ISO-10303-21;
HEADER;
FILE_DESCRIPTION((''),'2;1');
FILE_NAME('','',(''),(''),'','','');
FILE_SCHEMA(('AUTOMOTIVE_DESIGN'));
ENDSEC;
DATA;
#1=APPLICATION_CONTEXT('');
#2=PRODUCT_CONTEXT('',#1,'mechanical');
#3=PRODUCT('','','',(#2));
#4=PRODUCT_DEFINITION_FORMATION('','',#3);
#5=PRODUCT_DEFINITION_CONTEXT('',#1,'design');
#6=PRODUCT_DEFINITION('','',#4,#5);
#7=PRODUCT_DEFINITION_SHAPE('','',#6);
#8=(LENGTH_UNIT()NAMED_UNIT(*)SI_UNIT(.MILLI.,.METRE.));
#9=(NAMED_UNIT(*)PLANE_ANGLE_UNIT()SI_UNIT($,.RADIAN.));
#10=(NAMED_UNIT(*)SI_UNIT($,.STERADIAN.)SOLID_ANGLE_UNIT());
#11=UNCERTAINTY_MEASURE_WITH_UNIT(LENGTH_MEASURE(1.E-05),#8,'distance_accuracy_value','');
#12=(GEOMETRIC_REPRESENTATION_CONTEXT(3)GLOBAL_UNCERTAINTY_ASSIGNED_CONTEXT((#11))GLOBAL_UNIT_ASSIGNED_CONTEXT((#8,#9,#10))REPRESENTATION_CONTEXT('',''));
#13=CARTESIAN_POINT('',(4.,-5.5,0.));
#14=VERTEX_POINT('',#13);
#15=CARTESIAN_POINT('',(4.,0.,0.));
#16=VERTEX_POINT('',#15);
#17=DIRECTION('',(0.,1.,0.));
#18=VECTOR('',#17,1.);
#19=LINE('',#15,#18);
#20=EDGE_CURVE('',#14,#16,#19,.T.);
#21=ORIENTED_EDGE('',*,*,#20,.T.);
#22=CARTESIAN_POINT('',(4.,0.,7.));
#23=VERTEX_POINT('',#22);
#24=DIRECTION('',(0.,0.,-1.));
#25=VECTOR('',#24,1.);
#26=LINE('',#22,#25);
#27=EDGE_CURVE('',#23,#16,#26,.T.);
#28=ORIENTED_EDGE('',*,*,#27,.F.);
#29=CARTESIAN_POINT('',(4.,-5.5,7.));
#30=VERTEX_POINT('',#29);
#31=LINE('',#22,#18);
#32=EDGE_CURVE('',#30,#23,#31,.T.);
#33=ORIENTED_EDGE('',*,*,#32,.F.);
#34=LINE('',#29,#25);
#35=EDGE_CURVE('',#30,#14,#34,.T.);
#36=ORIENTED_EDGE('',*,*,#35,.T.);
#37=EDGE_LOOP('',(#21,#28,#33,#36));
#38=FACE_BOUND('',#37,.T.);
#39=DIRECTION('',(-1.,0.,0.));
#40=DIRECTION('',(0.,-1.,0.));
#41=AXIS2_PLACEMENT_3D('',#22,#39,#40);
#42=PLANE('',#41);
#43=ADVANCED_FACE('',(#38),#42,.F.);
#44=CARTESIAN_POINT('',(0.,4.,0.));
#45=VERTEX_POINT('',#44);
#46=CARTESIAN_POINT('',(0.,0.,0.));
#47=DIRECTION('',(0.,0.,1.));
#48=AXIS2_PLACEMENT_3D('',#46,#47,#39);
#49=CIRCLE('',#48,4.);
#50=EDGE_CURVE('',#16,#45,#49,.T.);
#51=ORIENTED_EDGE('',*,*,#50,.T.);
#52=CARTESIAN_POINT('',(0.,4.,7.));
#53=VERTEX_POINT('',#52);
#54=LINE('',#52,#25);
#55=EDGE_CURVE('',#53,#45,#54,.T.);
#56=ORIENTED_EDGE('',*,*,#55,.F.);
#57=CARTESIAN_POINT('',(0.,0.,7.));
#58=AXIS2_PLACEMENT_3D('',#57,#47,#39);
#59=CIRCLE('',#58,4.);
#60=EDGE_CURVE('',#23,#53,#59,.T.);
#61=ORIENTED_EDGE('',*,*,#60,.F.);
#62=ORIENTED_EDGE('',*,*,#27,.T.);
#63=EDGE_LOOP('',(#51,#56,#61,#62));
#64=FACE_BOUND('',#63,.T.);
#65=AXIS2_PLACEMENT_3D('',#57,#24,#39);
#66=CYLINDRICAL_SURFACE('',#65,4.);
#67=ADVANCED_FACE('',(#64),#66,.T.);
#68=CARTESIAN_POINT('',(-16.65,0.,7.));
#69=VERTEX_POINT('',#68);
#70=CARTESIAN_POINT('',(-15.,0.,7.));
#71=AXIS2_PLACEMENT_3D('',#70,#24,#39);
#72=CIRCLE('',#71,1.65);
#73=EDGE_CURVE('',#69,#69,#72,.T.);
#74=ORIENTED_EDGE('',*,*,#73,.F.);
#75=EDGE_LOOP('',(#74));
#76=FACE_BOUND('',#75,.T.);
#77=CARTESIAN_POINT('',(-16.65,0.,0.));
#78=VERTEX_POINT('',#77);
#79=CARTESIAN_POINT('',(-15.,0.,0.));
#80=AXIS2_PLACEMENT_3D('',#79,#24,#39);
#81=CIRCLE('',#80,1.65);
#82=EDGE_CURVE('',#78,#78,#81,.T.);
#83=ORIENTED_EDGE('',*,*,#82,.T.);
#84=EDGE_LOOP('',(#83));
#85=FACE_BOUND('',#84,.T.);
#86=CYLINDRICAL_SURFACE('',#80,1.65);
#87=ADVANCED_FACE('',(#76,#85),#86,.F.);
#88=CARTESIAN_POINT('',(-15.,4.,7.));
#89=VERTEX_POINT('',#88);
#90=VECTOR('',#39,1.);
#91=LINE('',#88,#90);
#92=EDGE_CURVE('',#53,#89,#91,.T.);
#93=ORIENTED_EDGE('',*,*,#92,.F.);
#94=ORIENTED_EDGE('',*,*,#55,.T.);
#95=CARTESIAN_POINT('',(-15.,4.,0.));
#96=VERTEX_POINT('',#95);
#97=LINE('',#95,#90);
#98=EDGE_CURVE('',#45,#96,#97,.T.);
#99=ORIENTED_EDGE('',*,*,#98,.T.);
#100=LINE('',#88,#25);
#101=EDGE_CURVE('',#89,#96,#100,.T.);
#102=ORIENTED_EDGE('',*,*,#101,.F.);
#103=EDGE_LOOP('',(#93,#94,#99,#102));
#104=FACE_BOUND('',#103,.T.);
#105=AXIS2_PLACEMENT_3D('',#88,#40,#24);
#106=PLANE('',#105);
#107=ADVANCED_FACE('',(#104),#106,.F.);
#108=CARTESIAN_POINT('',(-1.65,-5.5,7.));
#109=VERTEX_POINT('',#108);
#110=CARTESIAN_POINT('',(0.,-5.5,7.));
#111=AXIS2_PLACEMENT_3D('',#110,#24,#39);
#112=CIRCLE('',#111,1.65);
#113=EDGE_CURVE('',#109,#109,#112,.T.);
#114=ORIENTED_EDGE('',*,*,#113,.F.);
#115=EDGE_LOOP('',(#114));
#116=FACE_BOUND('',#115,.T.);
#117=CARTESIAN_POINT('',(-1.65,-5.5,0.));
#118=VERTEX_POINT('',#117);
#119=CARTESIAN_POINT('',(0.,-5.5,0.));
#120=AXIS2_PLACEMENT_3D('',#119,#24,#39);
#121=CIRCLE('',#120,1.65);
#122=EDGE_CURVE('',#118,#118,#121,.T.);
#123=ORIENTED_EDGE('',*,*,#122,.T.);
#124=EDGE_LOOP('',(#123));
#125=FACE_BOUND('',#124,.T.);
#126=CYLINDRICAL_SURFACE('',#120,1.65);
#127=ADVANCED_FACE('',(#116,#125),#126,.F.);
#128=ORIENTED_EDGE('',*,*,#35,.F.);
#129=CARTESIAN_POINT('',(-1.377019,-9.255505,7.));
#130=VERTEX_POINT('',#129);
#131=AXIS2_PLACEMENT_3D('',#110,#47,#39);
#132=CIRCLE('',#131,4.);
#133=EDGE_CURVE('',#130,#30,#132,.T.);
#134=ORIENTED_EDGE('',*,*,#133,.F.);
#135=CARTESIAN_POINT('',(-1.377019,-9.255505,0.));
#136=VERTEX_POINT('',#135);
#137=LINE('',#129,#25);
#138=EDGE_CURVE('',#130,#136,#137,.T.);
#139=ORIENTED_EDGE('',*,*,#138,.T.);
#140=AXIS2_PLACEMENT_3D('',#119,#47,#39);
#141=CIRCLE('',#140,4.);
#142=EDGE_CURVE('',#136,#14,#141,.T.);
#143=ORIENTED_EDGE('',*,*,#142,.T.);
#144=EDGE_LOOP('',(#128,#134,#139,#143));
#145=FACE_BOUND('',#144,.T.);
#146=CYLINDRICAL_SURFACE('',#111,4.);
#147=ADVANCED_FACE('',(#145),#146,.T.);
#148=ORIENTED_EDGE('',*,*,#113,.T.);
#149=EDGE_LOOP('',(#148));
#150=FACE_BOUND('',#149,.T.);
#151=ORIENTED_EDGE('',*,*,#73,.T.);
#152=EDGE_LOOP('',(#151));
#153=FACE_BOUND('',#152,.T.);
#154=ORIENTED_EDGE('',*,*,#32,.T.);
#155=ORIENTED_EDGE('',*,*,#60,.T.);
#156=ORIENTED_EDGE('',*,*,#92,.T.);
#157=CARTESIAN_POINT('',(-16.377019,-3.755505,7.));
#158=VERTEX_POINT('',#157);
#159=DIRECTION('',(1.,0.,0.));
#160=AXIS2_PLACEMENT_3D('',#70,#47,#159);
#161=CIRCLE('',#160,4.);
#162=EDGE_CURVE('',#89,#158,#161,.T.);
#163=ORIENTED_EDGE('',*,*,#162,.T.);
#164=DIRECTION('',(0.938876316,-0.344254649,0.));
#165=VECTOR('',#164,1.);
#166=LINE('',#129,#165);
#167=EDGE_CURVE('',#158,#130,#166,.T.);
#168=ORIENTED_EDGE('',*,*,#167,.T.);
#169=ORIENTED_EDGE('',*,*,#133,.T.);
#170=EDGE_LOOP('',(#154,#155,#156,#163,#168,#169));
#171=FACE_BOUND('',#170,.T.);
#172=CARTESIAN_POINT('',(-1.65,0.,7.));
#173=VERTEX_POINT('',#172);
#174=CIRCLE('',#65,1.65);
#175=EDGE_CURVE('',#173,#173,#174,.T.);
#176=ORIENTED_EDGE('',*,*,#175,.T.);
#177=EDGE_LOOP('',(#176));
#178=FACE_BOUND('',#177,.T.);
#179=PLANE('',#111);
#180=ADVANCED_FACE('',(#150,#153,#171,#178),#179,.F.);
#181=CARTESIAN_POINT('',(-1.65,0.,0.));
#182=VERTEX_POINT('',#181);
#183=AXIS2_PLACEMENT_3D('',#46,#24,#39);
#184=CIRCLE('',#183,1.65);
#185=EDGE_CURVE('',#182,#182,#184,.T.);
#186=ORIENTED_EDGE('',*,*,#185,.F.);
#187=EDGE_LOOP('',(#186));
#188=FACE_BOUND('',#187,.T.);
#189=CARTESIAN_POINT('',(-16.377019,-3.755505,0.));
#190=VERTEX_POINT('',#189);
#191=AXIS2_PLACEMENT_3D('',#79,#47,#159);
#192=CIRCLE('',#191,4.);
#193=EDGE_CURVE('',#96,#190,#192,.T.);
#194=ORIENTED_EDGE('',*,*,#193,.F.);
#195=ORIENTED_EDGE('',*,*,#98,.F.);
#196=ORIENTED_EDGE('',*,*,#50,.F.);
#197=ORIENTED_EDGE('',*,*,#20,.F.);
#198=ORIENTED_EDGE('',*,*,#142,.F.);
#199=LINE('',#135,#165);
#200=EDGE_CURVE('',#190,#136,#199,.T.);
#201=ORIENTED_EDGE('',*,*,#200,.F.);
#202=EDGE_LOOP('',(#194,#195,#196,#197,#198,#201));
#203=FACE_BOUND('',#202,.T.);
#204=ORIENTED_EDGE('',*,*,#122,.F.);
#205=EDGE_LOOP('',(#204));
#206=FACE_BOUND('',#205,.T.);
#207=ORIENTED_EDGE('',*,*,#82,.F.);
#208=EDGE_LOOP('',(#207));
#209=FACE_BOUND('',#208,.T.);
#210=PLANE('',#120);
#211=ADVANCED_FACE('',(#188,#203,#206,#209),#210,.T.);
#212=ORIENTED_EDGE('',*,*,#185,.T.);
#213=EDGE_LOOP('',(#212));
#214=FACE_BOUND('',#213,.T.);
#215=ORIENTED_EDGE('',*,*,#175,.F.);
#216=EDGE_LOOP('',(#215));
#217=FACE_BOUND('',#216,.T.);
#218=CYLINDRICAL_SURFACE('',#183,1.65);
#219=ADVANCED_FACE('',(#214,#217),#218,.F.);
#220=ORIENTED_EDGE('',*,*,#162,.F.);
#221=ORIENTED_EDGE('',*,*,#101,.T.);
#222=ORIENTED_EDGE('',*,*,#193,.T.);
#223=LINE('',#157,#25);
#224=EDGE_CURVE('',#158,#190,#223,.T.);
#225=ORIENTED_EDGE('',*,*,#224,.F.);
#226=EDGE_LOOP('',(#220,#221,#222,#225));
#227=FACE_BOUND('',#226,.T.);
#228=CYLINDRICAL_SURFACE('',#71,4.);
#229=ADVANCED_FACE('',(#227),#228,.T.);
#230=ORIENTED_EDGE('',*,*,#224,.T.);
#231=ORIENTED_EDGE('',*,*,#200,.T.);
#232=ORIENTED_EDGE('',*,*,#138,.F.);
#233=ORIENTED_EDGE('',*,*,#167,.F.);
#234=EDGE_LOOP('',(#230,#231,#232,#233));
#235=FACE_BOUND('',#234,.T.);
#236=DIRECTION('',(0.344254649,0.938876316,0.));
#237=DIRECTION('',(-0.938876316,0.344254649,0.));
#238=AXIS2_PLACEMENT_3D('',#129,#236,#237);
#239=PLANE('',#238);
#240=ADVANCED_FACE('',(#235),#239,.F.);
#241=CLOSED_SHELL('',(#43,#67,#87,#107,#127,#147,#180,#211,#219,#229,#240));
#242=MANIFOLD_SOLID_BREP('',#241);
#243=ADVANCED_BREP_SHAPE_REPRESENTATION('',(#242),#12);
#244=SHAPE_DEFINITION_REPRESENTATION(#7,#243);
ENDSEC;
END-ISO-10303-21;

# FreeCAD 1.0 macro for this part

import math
import FreeCAD as App
import Part
import Sketcher
from FreeCAD import Vector

doc = App.newDocument("Part")
params = doc.addObject("Spreadsheet::Sheet", "Params")
for row, (alias, value) in enumerate([
    ("sketch1_radius", "4 mm"),
    ("sketch1_width", "15 mm"),
    ("sketch1_height", "5.5 mm"),
    ("pad1_length", "7 mm"),
    ("sketch2_diameter", "3.3 mm"),
    ("hole_diameter", "3.3 mm"),
], start=1):
    params.set(f"A{row}", alias)
    params.set(f"B{row}", "=" + value)
    params.setAlias(f"B{row}", alias)

body = doc.addObject("PartDesign::Body", "Body")

# Sketch on XY plane
sketch1 = body.newObject("Sketcher::SketchObject", "Sketch")
sketch1.AttachmentSupport = (doc.getObject("XY_Plane"), [""])
sketch1.MapMode = "FlatFace"
sketch1.addGeometry([
    Part.LineSegment(Vector(0, 4, 0), Vector(-15, 4, 0)),  # 0
    Part.ArcOfCircle(Part.Circle(Vector(-15, 0, 0), Vector(0, 0, 1), 4), math.radians(90), math.radians(250)),  # 1
    Part.LineSegment(Vector(-16.4, -3.8, 0), Vector(-1.4, -9.3, 0)),  # 2
    Part.ArcOfCircle(Part.Circle(Vector(0, -5.5, 0), Vector(0, 0, 1), 4), math.radians(-110), math.radians(0)),  # 3
    Part.LineSegment(Vector(4, -5.5, 0), Vector(4, 0, 0)),  # 4
    Part.ArcOfCircle(Part.Circle(Vector(0, 0, 0), Vector(0, 0, 1), 4), math.radians(0), math.radians(90)),  # 5
], False)
sketch1.addConstraint([
    Sketcher.Constraint("Tangent", 0, 2, 1, 1),
    Sketcher.Constraint("Tangent", 1, 2, 2, 1),
    Sketcher.Constraint("Tangent", 2, 2, 3, 1),
    Sketcher.Constraint("Tangent", 3, 2, 4, 1),
    Sketcher.Constraint("Tangent", 4, 2, 5, 1),
    Sketcher.Constraint("Tangent", 5, 2, 0, 1),
    Sketcher.Constraint("Horizontal", 0),
    Sketcher.Constraint("Vertical", 4),
    Sketcher.Constraint("Coincident", 5, 3, -1, 1),
    Sketcher.Constraint("Equal", 1, 3),
    Sketcher.Constraint("Equal", 3, 5),
    Sketcher.Constraint("Radius", 1, 4.0),
    Sketcher.Constraint("DistanceX", 0, 2, 0, 1, 15.0),
    Sketcher.Constraint("DistanceY", 4, 1, 4, 2, 5.5),
])
sketch1.setExpression("Constraints[11]", "Params.sketch1_radius")
sketch1.setExpression("Constraints[12]", "Params.sketch1_width")
sketch1.setExpression("Constraints[13]", "Params.sketch1_height")
pad1 = body.newObject("PartDesign::Pad", "Pad")
pad1.Profile = sketch1
pad1.setExpression("Length", "Params.pad1_length")

# Sketch on XY plane
sketch2 = body.newObject("Sketcher::SketchObject", "Sketch001")
sketch2.AttachmentSupport = (doc.getObject("XY_Plane"), [""])
sketch2.MapMode = "FlatFace"
sketch2.addGeometry([
    Part.Circle(Vector(-15, 0, 0), Vector(0, 0, 1), 1.6),
    Part.Circle(Vector(0, 0, 0), Vector(0, 0, 1), 1.6),
    Part.Circle(Vector(0, -5.5, 0), Vector(0, 0, 1), 1.6),
], False)
sketch2.addConstraint([
    Sketcher.Constraint("Coincident", 1, 3, -1, 1),
    Sketcher.Constraint("Equal", 0, 1),
    Sketcher.Constraint("Equal", 1, 2),
    Sketcher.Constraint("PointOnObject", 0, 3, -1),
    Sketcher.Constraint("PointOnObject", 2, 3, -2),
    Sketcher.Constraint("Diameter", 0, 3.3),
    Sketcher.Constraint("DistanceX", 0, 3, -1, 1, 15.0),
    Sketcher.Constraint("DistanceY", 2, 3, -1, 1, 5.5),
])
sketch2.setExpression("Constraints[5]", "Params.sketch2_diameter")
doc.recompute()
hole = body.newObject("PartDesign::Hole", "Hole")
hole.Profile = sketch2
hole.ThreadType = "None"
hole.setExpression("Diameter", "Params.hole_diameter")
hole.DepthType = "ThroughAll"
hole.Reversed = True

doc.recompute()
